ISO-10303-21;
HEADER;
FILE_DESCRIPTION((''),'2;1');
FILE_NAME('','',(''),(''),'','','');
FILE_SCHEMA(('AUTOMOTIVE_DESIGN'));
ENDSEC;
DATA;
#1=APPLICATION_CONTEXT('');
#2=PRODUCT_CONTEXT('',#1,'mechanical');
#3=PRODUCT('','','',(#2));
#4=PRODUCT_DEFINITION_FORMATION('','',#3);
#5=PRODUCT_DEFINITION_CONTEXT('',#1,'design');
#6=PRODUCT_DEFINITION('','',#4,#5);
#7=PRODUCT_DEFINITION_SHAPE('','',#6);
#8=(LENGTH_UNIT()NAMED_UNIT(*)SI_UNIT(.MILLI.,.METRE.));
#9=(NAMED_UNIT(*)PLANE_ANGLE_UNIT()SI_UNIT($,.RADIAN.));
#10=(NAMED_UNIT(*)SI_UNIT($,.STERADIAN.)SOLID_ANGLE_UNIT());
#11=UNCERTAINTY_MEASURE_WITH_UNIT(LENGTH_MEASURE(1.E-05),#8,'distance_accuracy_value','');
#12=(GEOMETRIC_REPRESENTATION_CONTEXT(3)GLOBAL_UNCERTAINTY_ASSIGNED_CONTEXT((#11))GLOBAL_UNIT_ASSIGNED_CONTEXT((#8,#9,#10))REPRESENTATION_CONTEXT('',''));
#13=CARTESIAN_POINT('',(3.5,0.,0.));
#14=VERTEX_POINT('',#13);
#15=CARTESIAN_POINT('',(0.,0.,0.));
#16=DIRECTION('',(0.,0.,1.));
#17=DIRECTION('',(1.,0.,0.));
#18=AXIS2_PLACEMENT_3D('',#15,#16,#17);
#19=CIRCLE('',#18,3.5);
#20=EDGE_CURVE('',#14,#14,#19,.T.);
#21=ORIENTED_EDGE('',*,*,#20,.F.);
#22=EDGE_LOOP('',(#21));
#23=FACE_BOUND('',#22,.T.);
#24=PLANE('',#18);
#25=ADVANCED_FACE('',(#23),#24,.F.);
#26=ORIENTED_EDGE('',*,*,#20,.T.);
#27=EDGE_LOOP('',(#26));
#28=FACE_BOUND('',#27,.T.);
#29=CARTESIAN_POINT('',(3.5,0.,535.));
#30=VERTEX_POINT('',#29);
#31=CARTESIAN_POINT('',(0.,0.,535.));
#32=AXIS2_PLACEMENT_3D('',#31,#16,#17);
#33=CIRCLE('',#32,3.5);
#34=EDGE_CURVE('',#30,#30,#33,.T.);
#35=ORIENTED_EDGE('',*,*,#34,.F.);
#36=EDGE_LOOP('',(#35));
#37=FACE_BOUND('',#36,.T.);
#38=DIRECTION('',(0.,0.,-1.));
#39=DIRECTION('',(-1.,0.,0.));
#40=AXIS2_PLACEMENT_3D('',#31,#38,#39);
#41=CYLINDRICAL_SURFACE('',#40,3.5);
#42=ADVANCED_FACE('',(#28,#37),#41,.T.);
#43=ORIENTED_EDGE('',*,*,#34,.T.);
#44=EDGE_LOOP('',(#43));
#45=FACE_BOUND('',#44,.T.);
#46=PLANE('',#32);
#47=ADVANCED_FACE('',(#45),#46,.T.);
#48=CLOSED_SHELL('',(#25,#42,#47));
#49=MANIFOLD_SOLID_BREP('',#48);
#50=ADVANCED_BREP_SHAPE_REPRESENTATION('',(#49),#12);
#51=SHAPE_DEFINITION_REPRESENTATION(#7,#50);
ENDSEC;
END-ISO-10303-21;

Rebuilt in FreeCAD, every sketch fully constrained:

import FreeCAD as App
import Part
import Sketcher

V = App.Vector

doc = App.newDocument("Part")
body = doc.addObject("PartDesign::Body", "Body")

# Sketch on XY plane
sketch1 = body.newObject("Sketcher::SketchObject", "Sketch")
sketch1.AttachmentSupport = (doc.getObject("XY_Plane"), [""])
sketch1.MapMode = "FlatFace"
sketch1.addGeometry(Part.Circle(V(0, 0, 0), V(0, 0, 1), 3.5), False)
sketch1.addConstraint([
    Sketcher.Constraint("Coincident", 0, 3, -1, 1),
    Sketcher.Constraint("Diameter", 0, 7.0),
])
pad1 = body.newObject("PartDesign::Pad", "Pad")
pad1.Profile = sketch1
pad1.Length = 535

doc.recompute()
